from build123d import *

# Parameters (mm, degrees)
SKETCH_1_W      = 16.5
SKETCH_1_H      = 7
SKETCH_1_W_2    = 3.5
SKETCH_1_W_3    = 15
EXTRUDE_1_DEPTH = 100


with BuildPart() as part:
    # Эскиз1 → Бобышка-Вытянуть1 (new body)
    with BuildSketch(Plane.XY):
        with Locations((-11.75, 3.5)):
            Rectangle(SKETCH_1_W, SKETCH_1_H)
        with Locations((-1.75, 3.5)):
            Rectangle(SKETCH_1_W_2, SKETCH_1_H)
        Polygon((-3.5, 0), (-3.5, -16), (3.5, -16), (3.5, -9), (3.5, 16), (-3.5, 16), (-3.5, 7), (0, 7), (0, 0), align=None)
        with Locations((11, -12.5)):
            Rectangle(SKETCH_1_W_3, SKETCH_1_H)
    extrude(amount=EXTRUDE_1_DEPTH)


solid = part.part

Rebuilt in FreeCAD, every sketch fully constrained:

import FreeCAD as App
import Part
import Sketcher

V = App.Vector

doc = App.newDocument("Part")
body = doc.addObject("PartDesign::Body", "Body")

# Sketch on XY plane
sketch1 = body.newObject("Sketcher::SketchObject", "Sketch")
sketch1.AttachmentSupport = (doc.getObject("XY_Plane"), [""])
sketch1.MapMode = "FlatFace"
sketch1.addGeometry([
    Part.LineSegment(V(-20, 7, 0), V(-20, 0, 0)),  # 0
    Part.LineSegment(V(-20, 0, 0), V(-4, 0, 0)),  # 1
    Part.LineSegment(V(-4, 0, 0), V(-4, -16, 0)),  # 2
    Part.LineSegment(V(-4, -16, 0), V(18, -16, 0)),  # 3
    Part.LineSegment(V(18, -16, 0), V(18, -9, 0)),  # 4
    Part.LineSegment(V(18, -9, 0), V(4, -9, 0)),  # 5
    Part.LineSegment(V(4, -9, 0), V(4, 16, 0)),  # 6
    Part.LineSegment(V(4, 16, 0), V(-4, 16, 0)),  # 7
    Part.LineSegment(V(-4, 16, 0), V(-4, 7, 0)),  # 8
    Part.LineSegment(V(-4, 7, 0), V(-20, 7, 0)),  # 9
], False)
sketch1.addConstraint([
    Sketcher.Constraint("Coincident", 0, 2, 1, 1),
    Sketcher.Constraint("Coincident", 1, 2, 2, 1),
    Sketcher.Constraint("Coincident", 2, 2, 3, 1),
    Sketcher.Constraint("Coincident", 3, 2, 4, 1),
    Sketcher.Constraint("Coincident", 4, 2, 5, 1),
    Sketcher.Constraint("Coincident", 5, 2, 6, 1),
    Sketcher.Constraint("Coincident", 6, 2, 7, 1),
    Sketcher.Constraint("Coincident", 7, 2, 8, 1),
    Sketcher.Constraint("Coincident", 8, 2, 9, 1),
    Sketcher.Constraint("Coincident", 9, 2, 0, 1),
    Sketcher.Constraint("Vertical", 0),
    Sketcher.Constraint("Horizontal", 1),
    Sketcher.Constraint("Vertical", 2),
    Sketcher.Constraint("Horizontal", 3),
    Sketcher.Constraint("Vertical", 4),
    Sketcher.Constraint("Horizontal", 5),
    Sketcher.Constraint("Vertical", 6),
    Sketcher.Constraint("Horizontal", 7),
    Sketcher.Constraint("Vertical", 8),
    Sketcher.Constraint("Horizontal", 9),
    Sketcher.Constraint("Symmetric", 2, 2, 6, 2, -1, 1),
    Sketcher.Constraint("PointOnObject", 0, 2, -1),
    Sketcher.Constraint("Vertical", 2, 2, 7, 2),
    Sketcher.Constraint("Equal", 7, 0),
    Sketcher.Constraint("Equal", 0, 4),
    Sketcher.Constraint("DistanceX", 3, 1, 3, 2, 22.0),
    Sketcher.Constraint("DistanceX", 5, 2, 5, 1, 15.0),
    Sketcher.Constraint("DistanceY", 2, 2, 2, 1, 16.0),
    Sketcher.Constraint("DistanceX", 1, 1, 1, 2, 16.5),
])
pad1 = body.newObject("PartDesign::Pad", "Pad")
pad1.Profile = sketch1
pad1.Length = 100

doc.recompute()
